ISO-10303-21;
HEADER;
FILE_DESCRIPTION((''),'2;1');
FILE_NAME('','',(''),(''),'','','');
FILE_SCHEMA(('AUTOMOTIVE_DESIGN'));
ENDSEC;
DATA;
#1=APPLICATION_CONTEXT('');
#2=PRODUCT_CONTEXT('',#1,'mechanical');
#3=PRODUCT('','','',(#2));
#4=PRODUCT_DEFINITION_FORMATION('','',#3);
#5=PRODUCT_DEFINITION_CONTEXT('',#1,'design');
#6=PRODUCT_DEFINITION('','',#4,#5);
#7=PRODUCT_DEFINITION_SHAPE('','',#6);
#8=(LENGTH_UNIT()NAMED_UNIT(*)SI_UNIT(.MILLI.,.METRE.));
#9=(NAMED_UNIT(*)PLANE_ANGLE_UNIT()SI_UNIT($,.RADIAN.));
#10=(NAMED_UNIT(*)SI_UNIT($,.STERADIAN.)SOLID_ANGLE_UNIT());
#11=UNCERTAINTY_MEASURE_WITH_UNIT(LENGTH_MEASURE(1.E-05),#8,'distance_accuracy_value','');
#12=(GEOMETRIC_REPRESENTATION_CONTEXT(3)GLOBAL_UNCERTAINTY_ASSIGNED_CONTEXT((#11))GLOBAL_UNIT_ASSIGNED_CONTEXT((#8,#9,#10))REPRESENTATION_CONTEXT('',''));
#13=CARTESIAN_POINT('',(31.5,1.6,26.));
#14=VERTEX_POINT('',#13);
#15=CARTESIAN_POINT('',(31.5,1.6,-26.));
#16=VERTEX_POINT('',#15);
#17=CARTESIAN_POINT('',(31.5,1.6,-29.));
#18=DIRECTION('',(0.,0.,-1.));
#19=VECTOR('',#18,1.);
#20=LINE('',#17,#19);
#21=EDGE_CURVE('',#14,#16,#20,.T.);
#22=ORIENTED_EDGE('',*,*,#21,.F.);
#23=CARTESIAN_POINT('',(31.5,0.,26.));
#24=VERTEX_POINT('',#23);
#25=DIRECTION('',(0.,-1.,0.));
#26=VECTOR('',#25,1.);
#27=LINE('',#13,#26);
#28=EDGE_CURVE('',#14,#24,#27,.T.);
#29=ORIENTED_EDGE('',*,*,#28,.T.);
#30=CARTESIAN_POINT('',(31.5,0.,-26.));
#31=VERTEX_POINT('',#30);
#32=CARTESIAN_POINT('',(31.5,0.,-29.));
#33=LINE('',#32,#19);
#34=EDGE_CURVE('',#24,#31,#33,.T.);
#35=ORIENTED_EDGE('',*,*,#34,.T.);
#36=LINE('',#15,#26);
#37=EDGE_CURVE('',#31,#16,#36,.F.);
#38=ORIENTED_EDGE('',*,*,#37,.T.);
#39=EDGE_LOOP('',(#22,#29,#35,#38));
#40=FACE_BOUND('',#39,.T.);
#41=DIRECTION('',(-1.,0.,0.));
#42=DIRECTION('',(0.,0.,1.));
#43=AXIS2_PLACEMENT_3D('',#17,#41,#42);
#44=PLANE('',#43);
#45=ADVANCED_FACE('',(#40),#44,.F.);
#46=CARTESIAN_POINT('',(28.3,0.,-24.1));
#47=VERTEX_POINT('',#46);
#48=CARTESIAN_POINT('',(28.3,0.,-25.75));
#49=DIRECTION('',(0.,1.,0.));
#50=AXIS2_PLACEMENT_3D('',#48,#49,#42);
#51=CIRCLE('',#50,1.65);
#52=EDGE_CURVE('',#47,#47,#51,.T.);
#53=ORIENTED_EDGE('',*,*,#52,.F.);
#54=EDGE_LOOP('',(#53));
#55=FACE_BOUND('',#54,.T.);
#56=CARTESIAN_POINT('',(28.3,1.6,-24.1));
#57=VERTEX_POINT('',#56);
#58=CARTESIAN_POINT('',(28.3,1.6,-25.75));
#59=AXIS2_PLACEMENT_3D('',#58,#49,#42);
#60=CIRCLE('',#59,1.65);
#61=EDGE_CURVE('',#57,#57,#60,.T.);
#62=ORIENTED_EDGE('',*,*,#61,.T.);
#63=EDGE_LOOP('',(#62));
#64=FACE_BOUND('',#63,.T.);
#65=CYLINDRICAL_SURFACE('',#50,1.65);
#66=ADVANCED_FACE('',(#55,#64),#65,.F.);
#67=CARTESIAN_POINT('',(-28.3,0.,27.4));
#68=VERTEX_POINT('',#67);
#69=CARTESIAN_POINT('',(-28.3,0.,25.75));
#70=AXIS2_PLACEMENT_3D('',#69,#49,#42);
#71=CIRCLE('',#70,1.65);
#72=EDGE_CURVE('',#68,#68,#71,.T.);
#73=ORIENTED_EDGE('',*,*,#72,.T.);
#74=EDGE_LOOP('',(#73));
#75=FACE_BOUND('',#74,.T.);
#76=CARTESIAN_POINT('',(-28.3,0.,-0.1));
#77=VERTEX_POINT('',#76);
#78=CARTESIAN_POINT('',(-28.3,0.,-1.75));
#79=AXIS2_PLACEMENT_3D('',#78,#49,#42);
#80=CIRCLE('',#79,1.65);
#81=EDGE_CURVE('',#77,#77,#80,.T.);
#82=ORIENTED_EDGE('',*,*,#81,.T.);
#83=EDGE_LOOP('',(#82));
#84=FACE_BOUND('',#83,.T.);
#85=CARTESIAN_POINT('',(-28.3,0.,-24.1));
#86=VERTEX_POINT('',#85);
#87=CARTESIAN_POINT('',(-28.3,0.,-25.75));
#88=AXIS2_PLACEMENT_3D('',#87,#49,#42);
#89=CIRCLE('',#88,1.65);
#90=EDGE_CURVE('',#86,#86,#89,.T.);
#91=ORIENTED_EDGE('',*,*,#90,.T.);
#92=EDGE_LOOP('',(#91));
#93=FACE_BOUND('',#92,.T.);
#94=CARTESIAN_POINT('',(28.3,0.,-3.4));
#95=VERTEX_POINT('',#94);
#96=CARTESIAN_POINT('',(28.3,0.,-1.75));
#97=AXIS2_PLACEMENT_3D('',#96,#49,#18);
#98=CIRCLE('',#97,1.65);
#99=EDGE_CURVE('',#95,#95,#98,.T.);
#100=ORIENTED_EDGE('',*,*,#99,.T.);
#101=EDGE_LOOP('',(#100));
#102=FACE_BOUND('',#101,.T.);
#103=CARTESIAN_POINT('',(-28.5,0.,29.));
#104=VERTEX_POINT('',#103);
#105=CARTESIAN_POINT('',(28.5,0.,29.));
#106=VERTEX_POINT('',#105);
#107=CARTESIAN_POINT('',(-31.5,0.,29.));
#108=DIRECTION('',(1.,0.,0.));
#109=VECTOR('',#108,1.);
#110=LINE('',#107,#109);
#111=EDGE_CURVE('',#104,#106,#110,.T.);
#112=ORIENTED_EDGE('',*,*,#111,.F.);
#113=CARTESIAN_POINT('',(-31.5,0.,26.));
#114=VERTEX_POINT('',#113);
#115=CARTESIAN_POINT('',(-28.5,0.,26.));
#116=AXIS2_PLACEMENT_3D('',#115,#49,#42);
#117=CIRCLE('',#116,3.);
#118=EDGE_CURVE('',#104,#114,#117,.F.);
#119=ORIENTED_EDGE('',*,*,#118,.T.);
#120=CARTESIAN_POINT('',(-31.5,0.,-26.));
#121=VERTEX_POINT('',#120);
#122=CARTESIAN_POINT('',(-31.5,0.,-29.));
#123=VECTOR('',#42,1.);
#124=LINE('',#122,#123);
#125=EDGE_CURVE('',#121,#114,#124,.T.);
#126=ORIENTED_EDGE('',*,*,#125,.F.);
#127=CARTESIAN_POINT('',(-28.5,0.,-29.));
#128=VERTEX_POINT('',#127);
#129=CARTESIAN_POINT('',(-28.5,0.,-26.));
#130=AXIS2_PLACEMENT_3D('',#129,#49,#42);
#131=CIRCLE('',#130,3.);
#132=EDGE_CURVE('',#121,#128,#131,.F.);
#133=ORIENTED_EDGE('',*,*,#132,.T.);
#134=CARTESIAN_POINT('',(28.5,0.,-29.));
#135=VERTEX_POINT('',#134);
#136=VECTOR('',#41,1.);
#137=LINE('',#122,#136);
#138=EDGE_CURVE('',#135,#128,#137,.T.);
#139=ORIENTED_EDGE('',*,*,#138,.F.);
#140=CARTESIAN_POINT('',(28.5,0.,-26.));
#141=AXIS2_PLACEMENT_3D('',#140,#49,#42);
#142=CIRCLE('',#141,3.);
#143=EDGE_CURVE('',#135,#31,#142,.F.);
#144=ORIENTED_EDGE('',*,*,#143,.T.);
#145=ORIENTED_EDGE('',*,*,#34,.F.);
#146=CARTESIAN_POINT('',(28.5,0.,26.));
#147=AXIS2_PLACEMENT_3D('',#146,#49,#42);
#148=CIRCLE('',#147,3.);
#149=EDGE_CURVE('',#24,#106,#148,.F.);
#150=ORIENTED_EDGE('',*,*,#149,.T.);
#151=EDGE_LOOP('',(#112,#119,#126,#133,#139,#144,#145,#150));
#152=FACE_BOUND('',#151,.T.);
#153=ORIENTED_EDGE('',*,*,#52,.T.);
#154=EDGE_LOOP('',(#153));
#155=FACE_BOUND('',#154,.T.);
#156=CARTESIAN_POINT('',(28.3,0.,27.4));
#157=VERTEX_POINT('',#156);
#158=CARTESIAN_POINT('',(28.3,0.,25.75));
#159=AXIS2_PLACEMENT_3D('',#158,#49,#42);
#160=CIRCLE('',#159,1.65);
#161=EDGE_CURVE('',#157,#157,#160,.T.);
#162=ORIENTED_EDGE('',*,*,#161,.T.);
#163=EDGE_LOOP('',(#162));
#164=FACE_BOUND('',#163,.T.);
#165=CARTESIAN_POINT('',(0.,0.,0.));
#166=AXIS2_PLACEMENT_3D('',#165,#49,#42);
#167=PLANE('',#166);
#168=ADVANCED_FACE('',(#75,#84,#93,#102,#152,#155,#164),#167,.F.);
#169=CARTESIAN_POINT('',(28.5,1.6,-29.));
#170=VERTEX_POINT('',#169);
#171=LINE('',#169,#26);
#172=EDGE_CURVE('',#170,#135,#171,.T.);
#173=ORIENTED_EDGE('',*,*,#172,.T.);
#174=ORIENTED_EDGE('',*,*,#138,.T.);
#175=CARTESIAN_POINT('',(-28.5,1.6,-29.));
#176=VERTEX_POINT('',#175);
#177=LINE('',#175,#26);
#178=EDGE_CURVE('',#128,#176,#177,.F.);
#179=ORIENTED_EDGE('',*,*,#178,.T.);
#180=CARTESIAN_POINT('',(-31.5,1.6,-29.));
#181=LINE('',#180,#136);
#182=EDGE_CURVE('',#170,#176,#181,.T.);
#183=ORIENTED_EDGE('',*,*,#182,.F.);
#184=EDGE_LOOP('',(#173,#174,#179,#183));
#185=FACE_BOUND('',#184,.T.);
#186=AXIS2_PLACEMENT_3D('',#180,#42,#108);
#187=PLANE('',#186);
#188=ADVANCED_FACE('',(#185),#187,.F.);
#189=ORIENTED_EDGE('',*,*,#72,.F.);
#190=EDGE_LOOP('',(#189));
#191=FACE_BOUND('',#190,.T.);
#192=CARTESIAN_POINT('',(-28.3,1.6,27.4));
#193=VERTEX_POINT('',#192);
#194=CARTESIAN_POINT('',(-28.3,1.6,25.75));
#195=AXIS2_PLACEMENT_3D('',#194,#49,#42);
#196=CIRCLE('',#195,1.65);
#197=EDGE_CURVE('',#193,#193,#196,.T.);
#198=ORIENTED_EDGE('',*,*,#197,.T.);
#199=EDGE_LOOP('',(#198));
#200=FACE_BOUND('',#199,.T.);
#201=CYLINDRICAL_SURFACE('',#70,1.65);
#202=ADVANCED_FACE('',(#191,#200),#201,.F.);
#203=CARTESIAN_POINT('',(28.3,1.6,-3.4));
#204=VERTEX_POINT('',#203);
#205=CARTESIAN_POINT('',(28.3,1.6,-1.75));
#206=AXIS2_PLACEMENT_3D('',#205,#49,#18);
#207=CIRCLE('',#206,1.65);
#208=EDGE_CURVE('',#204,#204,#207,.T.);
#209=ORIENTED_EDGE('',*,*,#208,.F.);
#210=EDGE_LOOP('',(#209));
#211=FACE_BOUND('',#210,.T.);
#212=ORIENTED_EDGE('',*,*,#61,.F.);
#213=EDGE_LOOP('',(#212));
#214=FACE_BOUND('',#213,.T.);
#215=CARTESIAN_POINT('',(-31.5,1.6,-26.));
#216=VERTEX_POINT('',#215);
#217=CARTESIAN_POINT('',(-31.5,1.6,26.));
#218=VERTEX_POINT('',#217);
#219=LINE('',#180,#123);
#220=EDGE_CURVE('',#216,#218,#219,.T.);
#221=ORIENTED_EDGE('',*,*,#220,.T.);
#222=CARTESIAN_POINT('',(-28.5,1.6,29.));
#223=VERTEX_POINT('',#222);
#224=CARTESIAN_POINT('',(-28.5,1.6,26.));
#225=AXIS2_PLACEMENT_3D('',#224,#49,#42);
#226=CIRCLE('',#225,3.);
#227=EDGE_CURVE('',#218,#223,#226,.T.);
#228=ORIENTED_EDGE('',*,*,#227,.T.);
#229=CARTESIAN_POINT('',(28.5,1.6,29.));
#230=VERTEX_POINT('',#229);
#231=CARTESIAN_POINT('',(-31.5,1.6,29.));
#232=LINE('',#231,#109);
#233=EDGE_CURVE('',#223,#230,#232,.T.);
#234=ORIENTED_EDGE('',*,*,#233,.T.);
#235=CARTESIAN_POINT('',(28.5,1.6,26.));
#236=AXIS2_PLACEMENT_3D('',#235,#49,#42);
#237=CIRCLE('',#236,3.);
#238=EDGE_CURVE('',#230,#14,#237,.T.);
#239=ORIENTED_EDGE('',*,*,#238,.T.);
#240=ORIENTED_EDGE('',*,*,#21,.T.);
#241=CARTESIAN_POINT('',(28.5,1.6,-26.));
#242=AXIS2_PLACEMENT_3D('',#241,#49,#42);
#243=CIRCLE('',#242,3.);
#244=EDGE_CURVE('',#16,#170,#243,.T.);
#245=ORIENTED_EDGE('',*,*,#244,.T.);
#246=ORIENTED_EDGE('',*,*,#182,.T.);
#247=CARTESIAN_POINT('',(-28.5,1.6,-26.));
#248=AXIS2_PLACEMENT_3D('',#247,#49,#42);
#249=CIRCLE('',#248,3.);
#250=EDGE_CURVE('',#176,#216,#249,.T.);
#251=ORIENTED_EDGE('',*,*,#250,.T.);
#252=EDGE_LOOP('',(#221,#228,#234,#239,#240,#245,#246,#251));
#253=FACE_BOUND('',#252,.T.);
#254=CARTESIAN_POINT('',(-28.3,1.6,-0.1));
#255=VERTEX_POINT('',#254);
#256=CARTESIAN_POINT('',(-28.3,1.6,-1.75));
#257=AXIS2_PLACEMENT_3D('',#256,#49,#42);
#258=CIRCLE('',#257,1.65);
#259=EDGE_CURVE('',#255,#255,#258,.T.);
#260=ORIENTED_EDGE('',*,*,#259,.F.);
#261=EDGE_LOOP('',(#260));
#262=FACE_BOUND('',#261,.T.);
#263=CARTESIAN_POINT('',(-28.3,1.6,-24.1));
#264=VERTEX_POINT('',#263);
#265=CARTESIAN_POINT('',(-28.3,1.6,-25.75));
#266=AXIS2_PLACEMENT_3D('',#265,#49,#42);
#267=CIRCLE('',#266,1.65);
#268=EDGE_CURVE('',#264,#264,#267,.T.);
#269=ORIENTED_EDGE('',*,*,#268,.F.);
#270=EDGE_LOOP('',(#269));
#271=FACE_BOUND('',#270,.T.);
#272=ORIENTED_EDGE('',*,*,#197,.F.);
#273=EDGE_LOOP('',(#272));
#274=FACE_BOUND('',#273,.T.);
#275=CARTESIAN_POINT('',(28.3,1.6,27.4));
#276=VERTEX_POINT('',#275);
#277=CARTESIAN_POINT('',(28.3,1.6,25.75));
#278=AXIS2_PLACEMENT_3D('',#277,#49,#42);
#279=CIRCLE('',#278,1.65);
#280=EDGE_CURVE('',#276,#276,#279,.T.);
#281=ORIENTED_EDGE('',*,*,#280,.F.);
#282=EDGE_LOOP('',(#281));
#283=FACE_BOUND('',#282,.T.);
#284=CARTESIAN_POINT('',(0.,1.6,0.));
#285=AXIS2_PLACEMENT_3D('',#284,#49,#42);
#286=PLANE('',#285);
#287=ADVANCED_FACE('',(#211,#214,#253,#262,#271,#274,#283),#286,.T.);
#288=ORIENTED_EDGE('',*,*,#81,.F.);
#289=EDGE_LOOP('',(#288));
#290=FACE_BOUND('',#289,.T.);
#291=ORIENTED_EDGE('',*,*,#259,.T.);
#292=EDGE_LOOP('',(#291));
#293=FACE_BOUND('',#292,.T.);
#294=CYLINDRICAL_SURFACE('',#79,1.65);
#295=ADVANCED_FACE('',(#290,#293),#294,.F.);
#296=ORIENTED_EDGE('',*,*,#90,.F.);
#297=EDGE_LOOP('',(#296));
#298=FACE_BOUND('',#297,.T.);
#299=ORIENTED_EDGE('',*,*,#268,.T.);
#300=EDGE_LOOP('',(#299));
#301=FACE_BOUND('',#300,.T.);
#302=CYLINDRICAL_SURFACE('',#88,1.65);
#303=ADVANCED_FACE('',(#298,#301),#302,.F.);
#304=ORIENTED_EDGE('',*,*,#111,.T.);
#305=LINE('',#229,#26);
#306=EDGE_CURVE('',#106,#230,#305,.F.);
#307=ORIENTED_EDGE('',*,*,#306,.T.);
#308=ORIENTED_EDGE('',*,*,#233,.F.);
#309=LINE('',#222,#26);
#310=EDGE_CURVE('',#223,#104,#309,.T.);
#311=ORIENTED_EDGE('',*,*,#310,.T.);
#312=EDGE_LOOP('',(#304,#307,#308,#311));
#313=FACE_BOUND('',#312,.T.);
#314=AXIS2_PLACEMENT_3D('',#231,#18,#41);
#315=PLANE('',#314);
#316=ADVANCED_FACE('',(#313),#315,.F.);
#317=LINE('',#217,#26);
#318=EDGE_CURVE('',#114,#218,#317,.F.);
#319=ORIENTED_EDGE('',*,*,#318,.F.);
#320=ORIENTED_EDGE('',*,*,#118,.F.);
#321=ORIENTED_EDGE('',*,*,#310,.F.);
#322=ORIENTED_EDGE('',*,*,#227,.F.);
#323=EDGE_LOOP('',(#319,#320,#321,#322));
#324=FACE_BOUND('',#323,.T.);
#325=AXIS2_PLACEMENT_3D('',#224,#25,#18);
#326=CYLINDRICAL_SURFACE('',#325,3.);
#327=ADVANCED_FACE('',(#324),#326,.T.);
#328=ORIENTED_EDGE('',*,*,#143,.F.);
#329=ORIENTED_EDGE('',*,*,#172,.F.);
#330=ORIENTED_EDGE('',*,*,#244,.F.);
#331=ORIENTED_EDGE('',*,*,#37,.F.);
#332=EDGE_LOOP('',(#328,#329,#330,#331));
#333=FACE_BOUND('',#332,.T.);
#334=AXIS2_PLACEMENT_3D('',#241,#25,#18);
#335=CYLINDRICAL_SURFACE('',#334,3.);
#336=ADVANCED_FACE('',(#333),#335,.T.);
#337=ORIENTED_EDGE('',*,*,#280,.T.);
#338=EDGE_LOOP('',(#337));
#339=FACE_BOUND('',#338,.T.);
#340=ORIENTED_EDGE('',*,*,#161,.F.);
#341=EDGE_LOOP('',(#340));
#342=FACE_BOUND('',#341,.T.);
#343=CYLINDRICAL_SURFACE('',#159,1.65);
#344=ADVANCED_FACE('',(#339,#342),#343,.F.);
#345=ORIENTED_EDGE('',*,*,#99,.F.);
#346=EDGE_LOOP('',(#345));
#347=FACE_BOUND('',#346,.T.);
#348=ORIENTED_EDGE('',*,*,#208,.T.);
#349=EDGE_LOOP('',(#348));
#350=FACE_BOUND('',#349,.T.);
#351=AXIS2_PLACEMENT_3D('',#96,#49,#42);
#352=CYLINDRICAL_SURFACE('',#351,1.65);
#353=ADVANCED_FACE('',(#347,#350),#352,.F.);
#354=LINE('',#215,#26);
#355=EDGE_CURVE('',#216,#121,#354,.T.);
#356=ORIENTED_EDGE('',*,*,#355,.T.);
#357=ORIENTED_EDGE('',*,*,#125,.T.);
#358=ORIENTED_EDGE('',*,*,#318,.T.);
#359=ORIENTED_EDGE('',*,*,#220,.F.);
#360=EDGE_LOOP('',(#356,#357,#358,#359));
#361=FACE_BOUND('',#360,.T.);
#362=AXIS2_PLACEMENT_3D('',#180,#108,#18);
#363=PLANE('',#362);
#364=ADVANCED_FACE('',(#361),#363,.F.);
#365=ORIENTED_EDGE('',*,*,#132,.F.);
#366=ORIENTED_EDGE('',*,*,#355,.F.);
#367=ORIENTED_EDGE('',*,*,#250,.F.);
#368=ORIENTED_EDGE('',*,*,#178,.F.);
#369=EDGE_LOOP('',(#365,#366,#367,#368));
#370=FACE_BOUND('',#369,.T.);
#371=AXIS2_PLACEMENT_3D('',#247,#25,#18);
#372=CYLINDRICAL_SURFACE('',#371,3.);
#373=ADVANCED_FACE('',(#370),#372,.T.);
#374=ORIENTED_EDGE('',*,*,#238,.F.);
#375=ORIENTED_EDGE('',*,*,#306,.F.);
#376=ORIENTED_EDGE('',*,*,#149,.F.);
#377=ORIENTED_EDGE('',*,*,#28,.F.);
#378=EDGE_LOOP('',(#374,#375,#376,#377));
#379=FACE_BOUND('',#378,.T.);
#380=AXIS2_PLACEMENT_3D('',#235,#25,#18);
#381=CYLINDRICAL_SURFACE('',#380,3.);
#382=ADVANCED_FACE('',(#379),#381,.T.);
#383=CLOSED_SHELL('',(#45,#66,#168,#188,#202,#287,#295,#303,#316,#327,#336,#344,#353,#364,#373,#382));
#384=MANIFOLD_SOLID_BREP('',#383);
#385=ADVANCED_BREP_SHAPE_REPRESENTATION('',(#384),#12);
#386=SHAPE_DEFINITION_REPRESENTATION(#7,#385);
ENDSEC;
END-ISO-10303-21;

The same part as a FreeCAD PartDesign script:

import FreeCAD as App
import Part
import Sketcher
Q = App.Units.Quantity


def edges_at(feature, points):
    """Names of the edges that pass closest to the given points."""
    edges = feature.Shape.Edges
    near = lambda p: min(range(len(edges)), key=lambda i: edges[i].distToShape(Part.Vertex(*p))[0])
    return sorted({f"Edge{near(p) + 1}" for p in points})

doc = App.newDocument("Part")
body = doc.addObject("PartDesign::Body", "Body")

sketch1 = body.newObject("Sketcher::SketchObject", "Sketch")
sketch1.AttachmentSupport = (doc.getObject("XZ_Plane"), [""])
sketch1.MapMode = "FlatFace"
sketch1.addGeometry([
    Part.LineSegment(App.Vector(-32, -29, 0), App.Vector(-32, 29, 0)),
    Part.LineSegment(App.Vector(-32, 29, 0), App.Vector(32, 29, 0)),
    Part.LineSegment(App.Vector(32, 29, 0), App.Vector(32, -29, 0)),
    Part.LineSegment(App.Vector(32, -29, 0), App.Vector(-32, -29, 0)),
], False)
sketch1.addConstraint([
    Sketcher.Constraint("Coincident", 0, 2, 1, 1),
    Sketcher.Constraint("Coincident", 1, 2, 2, 1),
    Sketcher.Constraint("Coincident", 2, 2, 3, 1),
    Sketcher.Constraint("Coincident", 3, 2, 0, 1),
    Sketcher.Constraint("Vertical", 0),
    Sketcher.Constraint("Horizontal", 1),
    Sketcher.Constraint("Vertical", 2),
    Sketcher.Constraint("Horizontal", 3),
    Sketcher.Constraint("Symmetric", 0, 2, 2, 2, -1, 1),
    Sketcher.Constraint("DistanceX", 1, 1, 1, 2, Q("63 mm")),
    Sketcher.Constraint("DistanceY", 0, 1, 0, 2, Q("58 mm")),
])
pad1 = body.newObject("PartDesign::Pad", "Pad")
pad1.Profile = sketch1
pad1.Length = 1.6
pad1.Reversed = True

sketch2 = body.newObject("Sketcher::SketchObject", "Sketch001")
sketch2.AttachmentSupport = (doc.getObject("XZ_Plane"), [""])
sketch2.MapMode = "FlatFace"
sketch2.AttachmentOffset = App.Placement(App.Vector(0, 0, -1.6), App.Rotation())
sketch2.addGeometry([
    Part.Circle(App.Vector(-28.3, -25.8, 0), App.Vector(0, 0, 1), 1.6),
    Part.Circle(App.Vector(28.3, -25.8, 0), App.Vector(0, 0, 1), 1.6),
    Part.Circle(App.Vector(28.3, 25.8, 0), App.Vector(0, 0, 1), 1.6),
    Part.Circle(App.Vector(-28.3, 25.8, 0), App.Vector(0, 0, 1), 1.6),
], False)
sketch2.addConstraint([
    Sketcher.Constraint("Equal", 0, 1),
    Sketcher.Constraint("Equal", 1, 2),
    Sketcher.Constraint("Equal", 2, 3),
    Sketcher.Constraint("Symmetric", 0, 3, 2, 3, -1, 1),
    Sketcher.Constraint("Symmetric", 1, 3, 3, 3, -1, 1),
    Sketcher.Constraint("Symmetric", 0, 3, 1, 3, -2),
    Sketcher.Constraint("Diameter", 0, Q("3.3 mm")),
    Sketcher.Constraint("DistanceX", 0, 3, -1, 1, Q("28.3 mm")),
    Sketcher.Constraint("DistanceY", 1, 3, 2, 3, Q("51.5 mm")),
])
pocket1 = body.newObject("PartDesign::Pocket", "Pocket")
pocket1.Profile = sketch2
pocket1.Length = 1.6
pocket1.Reversed = True
doc.recompute()

fillet = body.newObject("PartDesign::Fillet", "Fillet")
fillet.Base = (pocket1, edges_at(pocket1, [
    (31.5, 0.8, 29),
    (-31.5, 0.8, 29),
    (-31.5, 0.8, -29),
    (31.5, 0.8, -29),
]))
fillet.Radius = 3

sketch3 = body.newObject("Sketcher::SketchObject", "Sketch002")
sketch3.AttachmentSupport = (doc.getObject("XZ_Plane"), [""])
sketch3.MapMode = "FlatFace"
sketch3.AttachmentOffset = App.Placement(App.Vector(0, 0, -1.6), App.Rotation())
sketch3.addGeometry([
    Part.Circle(App.Vector(-28.3, -1.8, 0), App.Vector(0, 0, 1), 1.6),
    Part.Circle(App.Vector(28.3, -1.8, 0), App.Vector(0, 0, 1), 1.6),
], False)
sketch3.addConstraint([
    Sketcher.Constraint("Equal", 0, 1),
    Sketcher.Constraint("Symmetric", 0, 3, 1, 3, -2),
    Sketcher.Constraint("Diameter", 0, Q("3.3 mm")),
    Sketcher.Constraint("DistanceX", 0, 3, -1, 1, Q("28.3 mm")),
    Sketcher.Constraint("DistanceY", 0, 3, -1, 1, Q("1.75 mm")),
])
pocket2 = body.newObject("PartDesign::Pocket", "Pocket001")
pocket2.Profile = sketch3
pocket2.Length = 1.6
pocket2.Reversed = True

doc.recompute()
